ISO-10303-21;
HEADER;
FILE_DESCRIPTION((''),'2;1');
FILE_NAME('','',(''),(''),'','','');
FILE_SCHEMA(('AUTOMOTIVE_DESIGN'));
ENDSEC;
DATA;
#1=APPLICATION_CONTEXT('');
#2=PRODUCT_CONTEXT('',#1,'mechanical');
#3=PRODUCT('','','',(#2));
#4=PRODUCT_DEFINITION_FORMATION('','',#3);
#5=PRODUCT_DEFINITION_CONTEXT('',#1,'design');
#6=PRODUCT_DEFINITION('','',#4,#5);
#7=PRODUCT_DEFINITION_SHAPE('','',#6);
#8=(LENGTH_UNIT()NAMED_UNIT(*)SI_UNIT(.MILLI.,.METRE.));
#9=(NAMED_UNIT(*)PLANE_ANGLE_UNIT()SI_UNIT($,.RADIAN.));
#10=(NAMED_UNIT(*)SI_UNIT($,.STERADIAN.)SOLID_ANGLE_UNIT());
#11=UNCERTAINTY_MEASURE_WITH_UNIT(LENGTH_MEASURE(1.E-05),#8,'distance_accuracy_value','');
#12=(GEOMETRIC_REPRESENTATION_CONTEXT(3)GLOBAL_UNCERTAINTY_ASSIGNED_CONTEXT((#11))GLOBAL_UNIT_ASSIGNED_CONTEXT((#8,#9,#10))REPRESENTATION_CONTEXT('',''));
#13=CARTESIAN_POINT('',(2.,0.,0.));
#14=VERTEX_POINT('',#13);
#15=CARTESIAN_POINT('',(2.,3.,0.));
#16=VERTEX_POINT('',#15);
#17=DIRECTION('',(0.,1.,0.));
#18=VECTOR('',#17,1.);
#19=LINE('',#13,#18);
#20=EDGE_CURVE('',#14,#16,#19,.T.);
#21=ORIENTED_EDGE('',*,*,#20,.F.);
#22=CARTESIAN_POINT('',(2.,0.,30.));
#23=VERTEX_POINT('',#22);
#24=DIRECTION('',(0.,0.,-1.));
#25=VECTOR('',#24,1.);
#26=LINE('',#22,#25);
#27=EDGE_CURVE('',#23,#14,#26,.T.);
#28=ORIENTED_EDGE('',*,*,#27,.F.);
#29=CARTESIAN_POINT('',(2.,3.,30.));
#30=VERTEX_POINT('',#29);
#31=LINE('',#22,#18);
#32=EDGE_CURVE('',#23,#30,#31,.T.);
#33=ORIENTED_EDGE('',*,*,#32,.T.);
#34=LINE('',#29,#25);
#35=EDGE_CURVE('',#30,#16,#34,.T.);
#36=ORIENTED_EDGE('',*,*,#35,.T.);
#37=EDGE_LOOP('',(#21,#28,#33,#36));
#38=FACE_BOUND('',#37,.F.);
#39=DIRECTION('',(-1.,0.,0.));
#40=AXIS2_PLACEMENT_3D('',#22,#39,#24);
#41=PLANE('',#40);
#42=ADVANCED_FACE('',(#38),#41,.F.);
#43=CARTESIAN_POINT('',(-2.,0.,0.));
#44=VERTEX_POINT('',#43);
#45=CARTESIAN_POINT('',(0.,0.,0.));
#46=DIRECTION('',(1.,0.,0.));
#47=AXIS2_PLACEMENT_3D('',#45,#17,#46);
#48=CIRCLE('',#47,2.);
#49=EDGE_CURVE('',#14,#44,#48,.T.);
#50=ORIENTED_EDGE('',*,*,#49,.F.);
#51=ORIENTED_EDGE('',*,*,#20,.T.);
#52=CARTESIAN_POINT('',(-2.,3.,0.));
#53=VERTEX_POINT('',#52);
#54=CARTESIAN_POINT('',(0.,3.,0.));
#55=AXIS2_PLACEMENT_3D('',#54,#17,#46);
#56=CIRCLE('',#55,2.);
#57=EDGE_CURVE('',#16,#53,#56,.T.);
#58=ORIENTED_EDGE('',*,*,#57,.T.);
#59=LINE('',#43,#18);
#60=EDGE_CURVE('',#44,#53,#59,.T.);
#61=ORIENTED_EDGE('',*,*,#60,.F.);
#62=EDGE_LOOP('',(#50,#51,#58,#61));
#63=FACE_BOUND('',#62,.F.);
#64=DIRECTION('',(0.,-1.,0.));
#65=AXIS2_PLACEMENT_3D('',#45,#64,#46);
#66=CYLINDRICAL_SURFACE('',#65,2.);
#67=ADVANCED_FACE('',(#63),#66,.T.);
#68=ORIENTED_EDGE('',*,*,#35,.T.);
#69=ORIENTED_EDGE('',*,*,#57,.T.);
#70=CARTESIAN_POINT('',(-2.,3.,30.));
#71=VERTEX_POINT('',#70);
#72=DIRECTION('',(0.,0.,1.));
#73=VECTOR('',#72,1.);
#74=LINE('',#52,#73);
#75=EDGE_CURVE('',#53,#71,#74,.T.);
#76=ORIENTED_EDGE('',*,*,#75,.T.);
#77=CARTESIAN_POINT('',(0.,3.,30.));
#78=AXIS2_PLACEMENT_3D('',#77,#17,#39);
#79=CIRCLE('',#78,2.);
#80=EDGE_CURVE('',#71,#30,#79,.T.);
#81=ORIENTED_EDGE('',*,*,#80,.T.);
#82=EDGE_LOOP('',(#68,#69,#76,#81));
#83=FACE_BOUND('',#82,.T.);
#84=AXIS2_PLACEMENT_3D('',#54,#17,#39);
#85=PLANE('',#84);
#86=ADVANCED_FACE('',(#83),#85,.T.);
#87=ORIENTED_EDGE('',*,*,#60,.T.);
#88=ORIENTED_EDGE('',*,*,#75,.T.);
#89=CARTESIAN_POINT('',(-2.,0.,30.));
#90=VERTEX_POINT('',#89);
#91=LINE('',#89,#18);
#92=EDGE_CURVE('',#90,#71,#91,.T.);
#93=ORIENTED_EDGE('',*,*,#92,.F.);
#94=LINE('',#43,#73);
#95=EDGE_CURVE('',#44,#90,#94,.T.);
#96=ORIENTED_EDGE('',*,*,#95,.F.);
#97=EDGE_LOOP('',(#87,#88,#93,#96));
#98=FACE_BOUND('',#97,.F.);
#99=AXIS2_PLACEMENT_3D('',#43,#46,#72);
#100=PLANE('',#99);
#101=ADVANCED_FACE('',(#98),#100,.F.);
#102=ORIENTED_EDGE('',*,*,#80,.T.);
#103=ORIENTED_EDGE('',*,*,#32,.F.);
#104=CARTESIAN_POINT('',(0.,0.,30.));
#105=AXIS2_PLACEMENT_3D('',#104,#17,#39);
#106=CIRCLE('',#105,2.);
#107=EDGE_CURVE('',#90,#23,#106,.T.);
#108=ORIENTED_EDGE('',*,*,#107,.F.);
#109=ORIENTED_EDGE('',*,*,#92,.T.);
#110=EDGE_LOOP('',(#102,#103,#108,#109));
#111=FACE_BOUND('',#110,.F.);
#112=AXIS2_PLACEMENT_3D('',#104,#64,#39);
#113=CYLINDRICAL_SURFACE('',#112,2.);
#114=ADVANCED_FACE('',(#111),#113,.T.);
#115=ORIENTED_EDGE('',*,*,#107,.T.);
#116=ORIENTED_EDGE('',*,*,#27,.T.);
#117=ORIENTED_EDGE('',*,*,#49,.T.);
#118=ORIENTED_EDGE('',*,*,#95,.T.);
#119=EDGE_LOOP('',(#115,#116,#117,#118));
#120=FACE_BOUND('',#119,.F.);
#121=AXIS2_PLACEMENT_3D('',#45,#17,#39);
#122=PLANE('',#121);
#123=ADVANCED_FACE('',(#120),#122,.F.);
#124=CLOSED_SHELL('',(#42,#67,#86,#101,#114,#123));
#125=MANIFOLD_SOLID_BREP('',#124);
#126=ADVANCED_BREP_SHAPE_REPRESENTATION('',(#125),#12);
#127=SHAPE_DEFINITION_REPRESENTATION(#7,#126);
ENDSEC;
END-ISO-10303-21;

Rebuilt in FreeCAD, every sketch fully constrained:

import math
import FreeCAD as App
import Part
import Sketcher
from FreeCAD import Vector
Q = App.Units.Quantity

doc = App.newDocument("Part")
params = doc.addObject("Spreadsheet::Sheet", "Params")
for row, (alias, value) in enumerate([
    ("sketch1_radius", "2 mm"),
    ("sketch1_height", "30 mm"),
    ("pad1_length", "3 mm"),
], start=1):
    params.set(f"A{row}", alias)
    params.set(f"B{row}", "=" + value)
    params.setAlias(f"B{row}", alias)

body = doc.addObject("PartDesign::Body", "Body")

sketch1 = body.newObject("Sketcher::SketchObject", "Sketch")
sketch1.AttachmentSupport = (doc.getObject("XZ_Plane"), [""])
sketch1.MapMode = "FlatFace"
sketch1.addGeometry(Part.ArcOfCircle(Part.Circle(Vector(0, 0, 0), Vector(0, 0, 1), 2), math.radians(180), math.radians(360)), False)
sketch1.addGeometry(Part.LineSegment(Vector(-2, 0, 0), Vector(-2, 30, 0)), False)
sketch1.addGeometry(Part.ArcOfCircle(Part.Circle(Vector(0, 30, 0), Vector(0, 0, 1), 2), math.radians(0), math.radians(180)), False)
sketch1.addGeometry(Part.LineSegment(Vector(2, 30, 0), Vector(2, 0, 0)), False)
sketch1.addConstraint(Sketcher.Constraint("Tangent", 0, 1, 1, 1))
sketch1.addConstraint(Sketcher.Constraint("Tangent", 1, 2, 2, 2))
sketch1.addConstraint(Sketcher.Constraint("Tangent", 2, 1, 3, 1))
sketch1.addConstraint(Sketcher.Constraint("Tangent", 3, 2, 0, 2))
sketch1.addConstraint(Sketcher.Constraint("Vertical", 1))
sketch1.addConstraint(Sketcher.Constraint("Vertical", 3))
sketch1.addConstraint(Sketcher.Constraint("Coincident", 0, 3, -1, 1))
sketch1.addConstraint(Sketcher.Constraint("Radius", 0, Q("2 mm")))
sketch1.addConstraint(Sketcher.Constraint("DistanceY", 1, 1, 1, 2, Q("30 mm")))
sketch1.setExpression("Constraints[7]", "Params.sketch1_radius")
sketch1.setExpression("Constraints[8]", "Params.sketch1_height")
pad1 = body.newObject("PartDesign::Pad", "Pad")
pad1.Profile = sketch1
pad1.setExpression("Length", "Params.pad1_length")
pad1.Reversed = True

doc.recompute()
